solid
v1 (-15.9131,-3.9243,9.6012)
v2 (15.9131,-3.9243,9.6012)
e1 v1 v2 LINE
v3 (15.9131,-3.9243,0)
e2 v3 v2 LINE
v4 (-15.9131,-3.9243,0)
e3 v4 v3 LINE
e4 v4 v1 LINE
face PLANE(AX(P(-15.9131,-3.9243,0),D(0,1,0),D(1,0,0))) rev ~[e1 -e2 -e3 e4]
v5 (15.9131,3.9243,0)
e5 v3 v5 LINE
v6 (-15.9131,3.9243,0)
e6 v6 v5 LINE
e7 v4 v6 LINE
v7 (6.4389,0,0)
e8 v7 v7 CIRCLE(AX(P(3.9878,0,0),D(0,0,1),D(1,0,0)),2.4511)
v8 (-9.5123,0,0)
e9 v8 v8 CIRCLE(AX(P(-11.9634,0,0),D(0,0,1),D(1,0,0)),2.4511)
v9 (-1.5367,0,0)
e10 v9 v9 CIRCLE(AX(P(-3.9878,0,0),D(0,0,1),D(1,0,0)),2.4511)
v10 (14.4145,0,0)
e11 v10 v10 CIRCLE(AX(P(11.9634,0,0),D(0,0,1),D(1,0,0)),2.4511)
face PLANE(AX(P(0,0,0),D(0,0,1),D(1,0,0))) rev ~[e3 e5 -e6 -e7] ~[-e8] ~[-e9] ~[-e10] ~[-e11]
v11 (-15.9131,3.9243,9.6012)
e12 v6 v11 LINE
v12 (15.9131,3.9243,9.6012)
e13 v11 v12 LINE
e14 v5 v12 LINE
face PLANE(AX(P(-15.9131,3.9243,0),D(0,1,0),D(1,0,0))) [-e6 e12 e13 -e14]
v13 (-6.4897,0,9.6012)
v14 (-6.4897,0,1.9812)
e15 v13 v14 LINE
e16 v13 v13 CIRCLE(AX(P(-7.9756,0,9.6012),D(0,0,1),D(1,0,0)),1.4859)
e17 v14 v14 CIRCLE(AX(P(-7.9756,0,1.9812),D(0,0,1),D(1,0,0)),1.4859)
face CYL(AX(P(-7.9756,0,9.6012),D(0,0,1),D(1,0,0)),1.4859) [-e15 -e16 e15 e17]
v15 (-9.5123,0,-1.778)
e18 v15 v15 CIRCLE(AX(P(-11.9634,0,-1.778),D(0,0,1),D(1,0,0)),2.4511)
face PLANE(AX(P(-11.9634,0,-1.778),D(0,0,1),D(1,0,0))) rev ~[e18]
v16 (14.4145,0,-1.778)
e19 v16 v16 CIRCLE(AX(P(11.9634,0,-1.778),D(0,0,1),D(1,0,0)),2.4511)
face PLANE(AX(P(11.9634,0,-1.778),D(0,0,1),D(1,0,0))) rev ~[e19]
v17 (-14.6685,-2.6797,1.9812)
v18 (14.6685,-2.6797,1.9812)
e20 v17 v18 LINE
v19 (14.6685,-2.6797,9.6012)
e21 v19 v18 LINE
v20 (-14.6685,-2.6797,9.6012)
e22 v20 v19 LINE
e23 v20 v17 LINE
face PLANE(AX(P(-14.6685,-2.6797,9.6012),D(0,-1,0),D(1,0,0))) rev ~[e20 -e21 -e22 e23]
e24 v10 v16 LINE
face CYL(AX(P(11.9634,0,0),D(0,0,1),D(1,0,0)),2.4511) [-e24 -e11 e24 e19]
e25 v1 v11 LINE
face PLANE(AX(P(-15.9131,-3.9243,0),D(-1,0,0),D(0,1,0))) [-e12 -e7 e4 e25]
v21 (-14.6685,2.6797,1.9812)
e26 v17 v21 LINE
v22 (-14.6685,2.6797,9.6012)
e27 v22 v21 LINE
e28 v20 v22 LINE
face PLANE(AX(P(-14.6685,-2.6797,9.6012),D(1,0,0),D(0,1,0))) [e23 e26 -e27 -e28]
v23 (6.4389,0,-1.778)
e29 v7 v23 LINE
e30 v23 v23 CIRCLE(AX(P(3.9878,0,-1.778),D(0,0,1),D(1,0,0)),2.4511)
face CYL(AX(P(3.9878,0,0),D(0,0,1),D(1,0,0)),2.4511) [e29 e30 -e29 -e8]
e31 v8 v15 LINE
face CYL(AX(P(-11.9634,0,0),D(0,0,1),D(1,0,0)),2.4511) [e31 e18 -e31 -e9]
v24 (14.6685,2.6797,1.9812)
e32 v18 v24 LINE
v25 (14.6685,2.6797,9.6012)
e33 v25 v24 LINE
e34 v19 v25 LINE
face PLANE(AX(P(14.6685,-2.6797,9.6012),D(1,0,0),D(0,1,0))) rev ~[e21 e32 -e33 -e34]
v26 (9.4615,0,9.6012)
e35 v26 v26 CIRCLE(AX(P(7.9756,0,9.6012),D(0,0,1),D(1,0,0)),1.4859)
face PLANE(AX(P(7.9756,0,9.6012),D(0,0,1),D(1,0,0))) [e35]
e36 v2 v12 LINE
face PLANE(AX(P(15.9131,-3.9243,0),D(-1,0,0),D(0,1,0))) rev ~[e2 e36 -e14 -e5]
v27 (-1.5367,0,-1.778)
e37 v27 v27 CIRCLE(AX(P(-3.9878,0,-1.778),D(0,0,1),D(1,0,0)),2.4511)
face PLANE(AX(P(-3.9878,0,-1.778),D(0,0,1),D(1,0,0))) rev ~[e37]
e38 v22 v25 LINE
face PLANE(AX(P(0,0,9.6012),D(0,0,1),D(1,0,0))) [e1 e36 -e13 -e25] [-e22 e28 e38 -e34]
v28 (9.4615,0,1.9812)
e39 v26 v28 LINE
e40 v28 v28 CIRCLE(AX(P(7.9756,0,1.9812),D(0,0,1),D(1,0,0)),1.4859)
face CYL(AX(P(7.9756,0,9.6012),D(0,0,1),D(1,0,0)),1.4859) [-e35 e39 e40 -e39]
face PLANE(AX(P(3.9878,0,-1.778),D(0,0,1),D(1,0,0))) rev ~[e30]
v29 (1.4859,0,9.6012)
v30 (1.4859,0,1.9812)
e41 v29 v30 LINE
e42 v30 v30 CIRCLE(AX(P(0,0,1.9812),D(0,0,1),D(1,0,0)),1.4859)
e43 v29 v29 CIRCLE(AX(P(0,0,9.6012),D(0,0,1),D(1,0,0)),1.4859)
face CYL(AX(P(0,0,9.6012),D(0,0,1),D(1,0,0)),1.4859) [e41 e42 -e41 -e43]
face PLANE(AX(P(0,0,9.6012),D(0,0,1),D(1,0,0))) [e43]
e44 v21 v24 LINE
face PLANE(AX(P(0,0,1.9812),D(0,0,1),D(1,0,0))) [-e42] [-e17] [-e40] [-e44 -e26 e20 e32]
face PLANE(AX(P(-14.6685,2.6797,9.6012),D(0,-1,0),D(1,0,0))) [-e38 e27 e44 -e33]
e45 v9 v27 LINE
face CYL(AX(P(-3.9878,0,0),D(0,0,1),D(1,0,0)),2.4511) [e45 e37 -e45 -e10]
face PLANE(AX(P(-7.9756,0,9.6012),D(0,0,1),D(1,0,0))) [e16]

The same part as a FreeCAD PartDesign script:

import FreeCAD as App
import Part
import Sketcher

V = App.Vector
Q = App.Units.Quantity

doc = App.newDocument("Part")
params = doc.addObject("Spreadsheet::Sheet", "Params")
for row, (alias, value) in enumerate([
    ("sketch1_width", "1.253 in"),
    ("sketch1_height", "0.309 in"),
    ("pad1_length", "0.378 in"),
    ("sketch2_diameter", "0.193 in"),
    ("pad2_length", "0.07 in"),
    ("sketch3_width", "1.155 in"),
    ("sketch3_height", "0.211 in"),
    ("pocket1_length", "0.3 in"),
    ("sketch4_diameter", "0.117 in"),
    ("pad3_length", "0.32 in"),
], start=1):
    params.set(f"A{row}", alias)
    params.set(f"B{row}", "=" + value)
    params.setAlias(f"B{row}", alias)

body = doc.addObject("PartDesign::Body", "Body")

sketch1 = body.newObject("Sketcher::SketchObject", "Sketch")
sketch1.AttachmentSupport = (doc.getObject("XY_Plane"), [""])
sketch1.MapMode = "FlatFace"
sketch1.addGeometry([
    Part.LineSegment(V(-15.9131, 3.9243, 0), V(-15.9131, -3.9243, 0)),
    Part.LineSegment(V(-15.9131, -3.9243, 0), V(15.9131, -3.9243, 0)),
    Part.LineSegment(V(15.9131, -3.9243, 0), V(15.9131, 3.9243, 0)),
    Part.LineSegment(V(15.9131, 3.9243, 0), V(-15.9131, 3.9243, 0)),
], False)
sketch1.addConstraint([
    Sketcher.Constraint("Coincident", 0, 2, 1, 1),
    Sketcher.Constraint("Coincident", 1, 2, 2, 1),
    Sketcher.Constraint("Coincident", 2, 2, 3, 1),
    Sketcher.Constraint("Coincident", 3, 2, 0, 1),
    Sketcher.Constraint("Vertical", 0),
    Sketcher.Constraint("Horizontal", 1),
    Sketcher.Constraint("Vertical", 2),
    Sketcher.Constraint("Horizontal", 3),
    Sketcher.Constraint("Symmetric", 0, 2, 2, 2, -1, 1),
    Sketcher.Constraint("DistanceX", 1, 1, 1, 2, Q("1.253 in")),
    Sketcher.Constraint("DistanceY", 0, 2, 0, 1, Q("0.309 in")),
])
sketch1.setExpression("Constraints[9]", "Params.sketch1_width")
sketch1.setExpression("Constraints[10]", "Params.sketch1_height")
pad1 = body.newObject("PartDesign::Pad", "Pad")
pad1.Profile = sketch1
pad1.setExpression("Length", "Params.pad1_length")

sketch2 = body.newObject("Sketcher::SketchObject", "Sketch001")
sketch2.AttachmentSupport = (doc.getObject("XY_Plane"), [""])
sketch2.MapMode = "FlatFace"
sketch2.addGeometry([
    Part.Circle(V(-11.9634, 0, 0), V(0, 0, 1), 2.4511),
    Part.Circle(V(-3.9878, 0, 0), V(0, 0, 1), 2.4511),
    Part.Circle(V(3.9878, 0, 0), V(0, 0, 1), 2.4511),
    Part.Circle(V(11.9634, 0, 0), V(0, 0, 1), 2.4511),
], False)
sketch2.addConstraint([
    Sketcher.Constraint("Equal", 0, 1),
    Sketcher.Constraint("Equal", 1, 2),
    Sketcher.Constraint("Equal", 2, 3),
    Sketcher.Constraint("Symmetric", 1, 3, 2, 3, -1, 1),
    Sketcher.Constraint("Symmetric", 0, 3, 3, 3, -1, 1),
    Sketcher.Constraint("PointOnObject", 0, 3, -1),
    Sketcher.Constraint("PointOnObject", 1, 3, -1),
    Sketcher.Constraint("Diameter", 0, Q("0.193 in")),
    Sketcher.Constraint("DistanceX", 0, 3, -1, 1, Q("0.471 in")),
    Sketcher.Constraint("DistanceX", 1, 3, -1, 1, Q("0.157 in")),
])
sketch2.setExpression("Constraints[7]", "Params.sketch2_diameter")
pad2 = body.newObject("PartDesign::Pad", "Pad001")
pad2.Profile = sketch2
pad2.setExpression("Length", "Params.pad2_length")
pad2.Reversed = True

sketch3 = body.newObject("Sketcher::SketchObject", "Sketch002")
sketch3.AttachmentSupport = (doc.getObject("XY_Plane"), [""])
sketch3.MapMode = "FlatFace"
sketch3.AttachmentOffset = App.Placement(V(0, 0, 0.378 * 25.4), App.Rotation())
sketch3.addGeometry([
    Part.LineSegment(V(-14.6685, 2.6797, 0), V(-14.6685, -2.6797, 0)),
    Part.LineSegment(V(-14.6685, -2.6797, 0), V(14.6685, -2.6797, 0)),
    Part.LineSegment(V(14.6685, -2.6797, 0), V(14.6685, 2.6797, 0)),
    Part.LineSegment(V(14.6685, 2.6797, 0), V(-14.6685, 2.6797, 0)),
], False)
sketch3.addConstraint([
    Sketcher.Constraint("Coincident", 0, 2, 1, 1),
    Sketcher.Constraint("Coincident", 1, 2, 2, 1),
    Sketcher.Constraint("Coincident", 2, 2, 3, 1),
    Sketcher.Constraint("Coincident", 3, 2, 0, 1),
    Sketcher.Constraint("Vertical", 0),
    Sketcher.Constraint("Horizontal", 1),
    Sketcher.Constraint("Vertical", 2),
    Sketcher.Constraint("Horizontal", 3),
    Sketcher.Constraint("Symmetric", 0, 2, 2, 2, -1, 1),
    Sketcher.Constraint("DistanceX", 1, 1, 1, 2, Q("1.155 in")),
    Sketcher.Constraint("DistanceY", 0, 2, 0, 1, Q("0.211 in")),
])
sketch3.setExpression("Constraints[9]", "Params.sketch3_width")
sketch3.setExpression("Constraints[10]", "Params.sketch3_height")
pocket1 = body.newObject("PartDesign::Pocket", "Pocket")
pocket1.Profile = sketch3
pocket1.setExpression("Length", "Params.pocket1_length")

sketch4 = body.newObject("Sketcher::SketchObject", "Sketch003")
sketch4.AttachmentSupport = (doc.getObject("XY_Plane"), [""])
sketch4.MapMode = "FlatFace"
sketch4.AttachmentOffset = App.Placement(V(0, 0, 0.378 * 25.4), App.Rotation())
sketch4.addGeometry([
    Part.Circle(V(-7.9756, 0, 0), V(0, 0, 1), 1.4859),
    Part.Circle(V(0, 0, 0), V(0, 0, 1), 1.4859),
    Part.Circle(V(7.9756, 0, 0), V(0, 0, 1), 1.4859),
], False)
sketch4.addConstraint([
    Sketcher.Constraint("Coincident", 1, 3, -1, 1),
    Sketcher.Constraint("Equal", 0, 1),
    Sketcher.Constraint("Equal", 1, 2),
    Sketcher.Constraint("Symmetric", 0, 3, 2, 3, -1, 1),
    Sketcher.Constraint("PointOnObject", 0, 3, -1),
    Sketcher.Constraint("Diameter", 0, Q("0.117 in")),
    Sketcher.Constraint("DistanceX", 0, 3, -1, 1, Q("0.314 in")),
])
sketch4.setExpression("Constraints[5]", "Params.sketch4_diameter")
pad3 = body.newObject("PartDesign::Pad", "Pad002")
pad3.Profile = sketch4
pad3.setExpression("Length", "Params.pad3_length")
pad3.Reversed = True

doc.recompute()
